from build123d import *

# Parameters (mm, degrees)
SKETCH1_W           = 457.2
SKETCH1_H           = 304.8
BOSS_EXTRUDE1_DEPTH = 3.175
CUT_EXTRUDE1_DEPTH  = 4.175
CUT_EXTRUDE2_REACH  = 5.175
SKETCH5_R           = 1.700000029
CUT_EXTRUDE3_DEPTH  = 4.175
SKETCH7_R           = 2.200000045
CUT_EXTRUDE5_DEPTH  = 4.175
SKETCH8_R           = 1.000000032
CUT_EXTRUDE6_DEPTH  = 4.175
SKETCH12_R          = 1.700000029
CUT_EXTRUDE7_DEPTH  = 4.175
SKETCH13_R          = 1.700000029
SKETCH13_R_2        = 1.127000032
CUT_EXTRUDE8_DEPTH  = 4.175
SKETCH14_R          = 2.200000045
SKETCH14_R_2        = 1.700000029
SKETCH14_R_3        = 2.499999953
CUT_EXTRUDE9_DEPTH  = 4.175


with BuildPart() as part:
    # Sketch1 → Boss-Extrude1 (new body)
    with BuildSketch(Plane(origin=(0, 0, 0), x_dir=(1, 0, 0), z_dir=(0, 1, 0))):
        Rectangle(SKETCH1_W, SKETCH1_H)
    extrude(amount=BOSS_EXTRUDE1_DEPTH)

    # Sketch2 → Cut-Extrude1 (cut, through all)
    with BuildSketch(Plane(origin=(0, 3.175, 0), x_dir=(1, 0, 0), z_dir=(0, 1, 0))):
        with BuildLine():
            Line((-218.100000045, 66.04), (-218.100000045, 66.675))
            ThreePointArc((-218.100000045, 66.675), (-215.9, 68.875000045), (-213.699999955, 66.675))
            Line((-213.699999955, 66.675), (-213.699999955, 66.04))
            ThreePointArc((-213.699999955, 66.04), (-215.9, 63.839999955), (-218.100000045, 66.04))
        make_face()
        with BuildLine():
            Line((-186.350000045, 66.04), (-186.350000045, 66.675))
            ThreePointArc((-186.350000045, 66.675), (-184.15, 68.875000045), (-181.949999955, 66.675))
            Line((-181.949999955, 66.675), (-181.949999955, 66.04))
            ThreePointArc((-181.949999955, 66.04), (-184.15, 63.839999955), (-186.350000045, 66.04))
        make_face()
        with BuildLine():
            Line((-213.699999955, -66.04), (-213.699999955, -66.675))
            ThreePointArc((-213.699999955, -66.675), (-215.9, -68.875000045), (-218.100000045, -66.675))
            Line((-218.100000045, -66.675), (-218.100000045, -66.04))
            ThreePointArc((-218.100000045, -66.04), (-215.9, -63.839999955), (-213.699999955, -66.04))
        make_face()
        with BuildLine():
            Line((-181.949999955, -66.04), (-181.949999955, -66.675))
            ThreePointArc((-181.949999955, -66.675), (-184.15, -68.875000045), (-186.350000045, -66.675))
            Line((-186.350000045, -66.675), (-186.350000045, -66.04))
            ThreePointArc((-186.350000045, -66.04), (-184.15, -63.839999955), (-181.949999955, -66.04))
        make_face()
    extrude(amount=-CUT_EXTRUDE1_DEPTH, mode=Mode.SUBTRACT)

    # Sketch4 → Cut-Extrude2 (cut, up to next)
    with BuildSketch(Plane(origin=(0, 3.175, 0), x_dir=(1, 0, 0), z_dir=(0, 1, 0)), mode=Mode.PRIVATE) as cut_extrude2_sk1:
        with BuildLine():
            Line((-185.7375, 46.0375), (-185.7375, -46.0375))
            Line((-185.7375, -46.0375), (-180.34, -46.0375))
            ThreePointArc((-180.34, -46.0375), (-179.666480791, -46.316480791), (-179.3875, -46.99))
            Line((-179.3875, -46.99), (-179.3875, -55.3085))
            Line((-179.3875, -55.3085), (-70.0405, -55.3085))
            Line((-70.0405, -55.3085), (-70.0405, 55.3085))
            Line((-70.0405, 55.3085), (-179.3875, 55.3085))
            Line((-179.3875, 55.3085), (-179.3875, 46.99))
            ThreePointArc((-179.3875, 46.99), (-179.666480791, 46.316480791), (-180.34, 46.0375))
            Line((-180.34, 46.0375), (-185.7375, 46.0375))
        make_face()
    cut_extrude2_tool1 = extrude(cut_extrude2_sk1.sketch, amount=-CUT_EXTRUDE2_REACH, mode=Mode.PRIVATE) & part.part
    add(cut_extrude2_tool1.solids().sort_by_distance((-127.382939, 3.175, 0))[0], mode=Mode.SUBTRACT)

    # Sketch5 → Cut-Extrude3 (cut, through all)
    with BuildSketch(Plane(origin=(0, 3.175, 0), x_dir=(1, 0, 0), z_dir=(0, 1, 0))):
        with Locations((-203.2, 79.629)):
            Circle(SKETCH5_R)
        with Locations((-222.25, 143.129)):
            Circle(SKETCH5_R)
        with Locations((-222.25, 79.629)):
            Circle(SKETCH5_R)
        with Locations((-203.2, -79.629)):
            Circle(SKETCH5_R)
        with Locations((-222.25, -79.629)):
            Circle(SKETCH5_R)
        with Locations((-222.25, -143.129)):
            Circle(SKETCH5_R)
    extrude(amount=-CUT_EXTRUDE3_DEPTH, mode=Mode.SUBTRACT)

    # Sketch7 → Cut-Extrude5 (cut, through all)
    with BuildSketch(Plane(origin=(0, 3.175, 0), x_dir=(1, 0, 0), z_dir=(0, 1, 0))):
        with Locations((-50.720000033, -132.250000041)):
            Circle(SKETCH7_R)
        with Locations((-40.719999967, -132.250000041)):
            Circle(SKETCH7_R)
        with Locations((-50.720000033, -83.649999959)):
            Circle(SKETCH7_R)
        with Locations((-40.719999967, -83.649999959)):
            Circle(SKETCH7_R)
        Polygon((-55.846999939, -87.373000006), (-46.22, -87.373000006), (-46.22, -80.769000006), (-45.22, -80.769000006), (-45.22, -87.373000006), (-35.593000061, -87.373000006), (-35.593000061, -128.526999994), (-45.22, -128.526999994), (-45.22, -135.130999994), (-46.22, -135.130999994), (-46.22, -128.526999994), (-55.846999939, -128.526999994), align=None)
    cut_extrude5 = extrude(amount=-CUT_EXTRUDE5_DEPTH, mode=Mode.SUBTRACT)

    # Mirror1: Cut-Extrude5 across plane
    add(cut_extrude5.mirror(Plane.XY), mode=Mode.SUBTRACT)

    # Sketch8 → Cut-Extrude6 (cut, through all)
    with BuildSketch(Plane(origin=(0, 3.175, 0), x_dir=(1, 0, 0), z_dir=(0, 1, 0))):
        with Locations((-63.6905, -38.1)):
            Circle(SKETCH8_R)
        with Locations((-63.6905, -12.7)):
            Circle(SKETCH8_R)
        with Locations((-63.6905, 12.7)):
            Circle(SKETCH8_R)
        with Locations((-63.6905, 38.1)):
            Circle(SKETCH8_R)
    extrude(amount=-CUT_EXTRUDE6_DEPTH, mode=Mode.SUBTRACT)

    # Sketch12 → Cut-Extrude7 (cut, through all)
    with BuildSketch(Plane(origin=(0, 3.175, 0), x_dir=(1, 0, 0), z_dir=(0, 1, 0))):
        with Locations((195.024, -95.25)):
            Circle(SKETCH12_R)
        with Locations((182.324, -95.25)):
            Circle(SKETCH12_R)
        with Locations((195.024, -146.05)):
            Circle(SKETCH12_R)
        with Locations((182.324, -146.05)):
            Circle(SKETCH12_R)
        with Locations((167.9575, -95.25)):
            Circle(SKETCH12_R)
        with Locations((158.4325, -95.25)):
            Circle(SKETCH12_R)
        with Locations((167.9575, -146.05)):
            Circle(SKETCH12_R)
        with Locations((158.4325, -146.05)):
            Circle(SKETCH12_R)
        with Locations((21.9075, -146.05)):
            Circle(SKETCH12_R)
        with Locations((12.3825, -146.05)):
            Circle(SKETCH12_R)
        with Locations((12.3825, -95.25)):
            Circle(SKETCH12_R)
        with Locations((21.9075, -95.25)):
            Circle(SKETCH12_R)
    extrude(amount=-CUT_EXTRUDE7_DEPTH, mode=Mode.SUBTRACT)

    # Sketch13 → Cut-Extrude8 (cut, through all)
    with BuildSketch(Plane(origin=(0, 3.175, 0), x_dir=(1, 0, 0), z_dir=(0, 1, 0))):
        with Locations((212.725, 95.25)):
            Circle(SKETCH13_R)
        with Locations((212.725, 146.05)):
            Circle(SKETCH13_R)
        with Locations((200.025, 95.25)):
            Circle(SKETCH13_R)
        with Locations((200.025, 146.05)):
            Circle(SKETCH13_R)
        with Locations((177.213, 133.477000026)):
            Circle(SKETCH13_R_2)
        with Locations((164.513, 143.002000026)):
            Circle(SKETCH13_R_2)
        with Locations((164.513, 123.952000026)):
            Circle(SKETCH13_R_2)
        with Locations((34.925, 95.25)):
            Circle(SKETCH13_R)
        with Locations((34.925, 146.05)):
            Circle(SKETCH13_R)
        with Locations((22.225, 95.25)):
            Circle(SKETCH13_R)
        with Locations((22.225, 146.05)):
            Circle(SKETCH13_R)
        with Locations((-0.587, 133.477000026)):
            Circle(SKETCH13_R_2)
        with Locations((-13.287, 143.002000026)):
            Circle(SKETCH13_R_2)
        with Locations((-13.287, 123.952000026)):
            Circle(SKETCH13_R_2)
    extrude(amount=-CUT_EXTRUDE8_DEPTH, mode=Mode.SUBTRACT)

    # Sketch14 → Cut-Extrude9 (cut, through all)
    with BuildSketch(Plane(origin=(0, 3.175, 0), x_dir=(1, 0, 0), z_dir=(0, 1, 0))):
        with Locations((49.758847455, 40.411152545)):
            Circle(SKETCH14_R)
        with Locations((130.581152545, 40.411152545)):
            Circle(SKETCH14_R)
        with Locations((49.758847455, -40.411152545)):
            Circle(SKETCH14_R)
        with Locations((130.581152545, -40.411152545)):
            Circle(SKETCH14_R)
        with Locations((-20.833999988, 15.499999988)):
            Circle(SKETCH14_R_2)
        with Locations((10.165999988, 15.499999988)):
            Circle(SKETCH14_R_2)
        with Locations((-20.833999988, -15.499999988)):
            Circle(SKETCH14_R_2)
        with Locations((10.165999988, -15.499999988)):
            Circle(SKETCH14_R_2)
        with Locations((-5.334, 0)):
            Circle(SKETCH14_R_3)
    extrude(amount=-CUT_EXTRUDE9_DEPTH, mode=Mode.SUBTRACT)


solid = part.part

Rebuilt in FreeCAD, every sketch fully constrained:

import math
import FreeCAD as App
import Part
import Sketcher

V = App.Vector
Q = App.Units.Quantity


def add_polygon(sketch, points):
    """Adds a closed chain of lines whose ends are joined by coincident constraints."""
    first, n = sketch.GeometryCount, len(points)
    for a, b in zip(points, points[1:] + points[:1]):
        sketch.addGeometry(Part.LineSegment(App.Vector(*a, 0), App.Vector(*b, 0)), False)
    for i in range(n):
        sketch.addConstraint(Sketcher.Constraint("Coincident", first + i, 2, first + (i + 1) % n, 1))

doc = App.newDocument("Part")
params = doc.addObject("Spreadsheet::Sheet", "Params")
for row, (alias, value) in enumerate([
    ("sketch1_width", "18 in"),
    ("sketch1_height", "12 in"),
    ("pad1_length", "0.125 in"),
    ("sketch2_height", "0.025 in"),
    ("sketch3_width", "4.305 in"),
    ("sketch3_height", "4.355 in"),
    ("sketch5_height", "0.26 in"),
], start=1):
    params.set(f"A{row}", alias)
    params.set(f"B{row}", "=" + value)
    params.setAlias(f"B{row}", alias)

body = doc.addObject("PartDesign::Body", "Body")

sketch1 = body.newObject("Sketcher::SketchObject", "Sketch")
sketch1.AttachmentSupport = (doc.getObject("XZ_Plane"), [""])
sketch1.MapMode = "FlatFace"
add_polygon(sketch1, [(-228.6, -152.4), (-228.6, 152.4), (228.6, 152.4), (228.6, -152.4)])
sketch1.addConstraint([
    Sketcher.Constraint("Vertical", 0),
    Sketcher.Constraint("Horizontal", 1),
    Sketcher.Constraint("Vertical", 2),
    Sketcher.Constraint("Horizontal", 3),
    Sketcher.Constraint("Symmetric", 0, 2, 2, 2, -1, 1),
    Sketcher.Constraint("DistanceX", 1, 1, 1, 2, Q("18 in")),
    Sketcher.Constraint("DistanceY", 0, 1, 0, 2, Q("12 in")),
])
sketch1.setExpression("Constraints[9]", "Params.sketch1_width")
sketch1.setExpression("Constraints[10]", "Params.sketch1_height")
pad1 = body.newObject("PartDesign::Pad", "Pad")
pad1.Profile = sketch1
pad1.setExpression("Length", "Params.pad1_length")
pad1.Reversed = True

sketch2 = body.newObject("Sketcher::SketchObject", "Sketch001")
sketch2.AttachmentSupport = (doc.getObject("XZ_Plane"), [""])
sketch2.MapMode = "FlatFace"
sketch2.AttachmentOffset = App.Placement(V(0, 0, -0.125 * 25.4), App.Rotation())
sketch2.addGeometry([
    Part.LineSegment(V(-218.1, -66.675, 0), V(-218.1, -66.04, 0)),
    Part.ArcOfCircle(Part.Circle(V(-215.9, -66.04, 0), V(0, 0, 1), 2.2), math.radians(0), math.radians(180)),
    Part.LineSegment(V(-213.7, -66.04, 0), V(-213.7, -66.675, 0)),
    Part.ArcOfCircle(Part.Circle(V(-215.9, -66.675, 0), V(0, 0, 1), 2.2), math.radians(180), math.radians(360)),
    Part.LineSegment(V(-186.35, -66.675, 0), V(-186.35, -66.04, 0)),
    Part.ArcOfCircle(Part.Circle(V(-184.15, -66.04, 0), V(0, 0, 1), 2.2), math.radians(0), math.radians(180)),
    Part.LineSegment(V(-181.95, -66.04, 0), V(-181.95, -66.675, 0)),
    Part.ArcOfCircle(Part.Circle(V(-184.15, -66.675, 0), V(0, 0, 1), 2.2), math.radians(180), math.radians(360)),
    Part.LineSegment(V(-213.7, 66.675, 0), V(-213.7, 66.04, 0)),
    Part.ArcOfCircle(Part.Circle(V(-215.9, 66.04, 0), V(0, 0, 1), 2.2), math.radians(180), math.radians(360)),
    Part.LineSegment(V(-218.1, 66.04, 0), V(-218.1, 66.675, 0)),
    Part.ArcOfCircle(Part.Circle(V(-215.9, 66.675, 0), V(0, 0, 1), 2.2), math.radians(0), math.radians(180)),
    Part.LineSegment(V(-181.95, 66.675, 0), V(-181.95, 66.04, 0)),
    Part.ArcOfCircle(Part.Circle(V(-184.15, 66.04, 0), V(0, 0, 1), 2.2), math.radians(180), math.radians(360)),
    Part.LineSegment(V(-186.35, 66.04, 0), V(-186.35, 66.675, 0)),
    Part.ArcOfCircle(Part.Circle(V(-184.15, 66.675, 0), V(0, 0, 1), 2.2), math.radians(0), math.radians(180)),
], False)
sketch2.addConstraint([
    Sketcher.Constraint("Tangent", 0, 2, 1, 2),
    Sketcher.Constraint("Tangent", 1, 1, 2, 1),
    Sketcher.Constraint("Tangent", 2, 2, 3, 2),
    Sketcher.Constraint("Tangent", 3, 1, 0, 1),
    Sketcher.Constraint("Tangent", 4, 2, 5, 2),
    Sketcher.Constraint("Tangent", 5, 1, 6, 1),
    Sketcher.Constraint("Tangent", 6, 2, 7, 2),
    Sketcher.Constraint("Tangent", 7, 1, 4, 1),
    Sketcher.Constraint("Tangent", 8, 2, 9, 2),
    Sketcher.Constraint("Tangent", 9, 1, 10, 1),
    Sketcher.Constraint("Tangent", 10, 2, 11, 2),
    Sketcher.Constraint("Tangent", 11, 1, 8, 1),
    Sketcher.Constraint("Tangent", 12, 2, 13, 2),
    Sketcher.Constraint("Tangent", 13, 1, 14, 1),
    Sketcher.Constraint("Tangent", 14, 2, 15, 2),
    Sketcher.Constraint("Tangent", 15, 1, 12, 1),
    Sketcher.Constraint("Vertical", 0),
    Sketcher.Constraint("Vertical", 2),
    Sketcher.Constraint("Vertical", 4),
    Sketcher.Constraint("Vertical", 6),
    Sketcher.Constraint("Vertical", 8),
    Sketcher.Constraint("Vertical", 10),
    Sketcher.Constraint("Vertical", 12),
    Sketcher.Constraint("Vertical", 14),
    Sketcher.Constraint("Equal", 3, 5),
    Sketcher.Constraint("Equal", 7, 9),
    Sketcher.Constraint("Equal", 11, 13),
    Sketcher.Constraint("Symmetric", 1, 3, 9, 3, -1),
    Sketcher.Constraint("Symmetric", 5, 3, 13, 3, -1),
    Sketcher.Constraint("Horizontal", 1, 3, 5, 3),
    Sketcher.Constraint("Horizontal", 3, 3, 7, 3),
    Sketcher.Constraint("Horizontal", 11, 3, 15, 3),
    Sketcher.Constraint("Equal", 6, 8),
    Sketcher.Constraint("DistanceX", 1, 3, -1, 1, Q("8.5 in")),
    Sketcher.Constraint("DistanceY", 1, 3, -1, 1, Q("2.6 in")),
    Sketcher.Constraint("DistanceY", 0, 1, 0, 2, Q("0.025 in")),
    Sketcher.Constraint("DistanceX", 5, 3, -1, 1, Q("7.25 in")),
    Sketcher.Constraint("Radius", 1, Q("2.2 mm")),
])
sketch2.setExpression("Constraints[35]", "Params.sketch2_height")
pocket1 = body.newObject("PartDesign::Pocket", "Pocket")
pocket1.Profile = sketch2
pocket1.Type = "ThroughAll"
pocket1.Reversed = True

sketch3 = body.newObject("Sketcher::SketchObject", "Sketch002")
sketch3.AttachmentSupport = (doc.getObject("XZ_Plane"), [""])
sketch3.MapMode = "FlatFace"
sketch3.AttachmentOffset = App.Placement(V(0, 0, -0.125 * 25.4), App.Rotation())
sketch3.addGeometry([
    Part.LineSegment(V(-185.7375, -46.0375, 0), V(-185.7375, 46.0375, 0)),
    Part.LineSegment(V(-185.7375, 46.0375, 0), V(-180.34, 46.0375, 0)),
    Part.ArcOfCircle(Part.Circle(V(-180.34, 46.99, 0), V(0, 0, 1), 0.9525), math.radians(-90), math.radians(0)),
    Part.LineSegment(V(-179.3875, 46.99, 0), V(-179.3875, 55.3085, 0)),
    Part.LineSegment(V(-179.3875, 55.3085, 0), V(-70.0405, 55.3085, 0)),
    Part.LineSegment(V(-70.0405, 55.3085, 0), V(-70.0405, -55.3085, 0)),
    Part.LineSegment(V(-70.0405, -55.3085, 0), V(-179.3875, -55.3085, 0)),
    Part.LineSegment(V(-179.3875, -55.3085, 0), V(-179.3875, -46.99, 0)),
    Part.ArcOfCircle(Part.Circle(V(-180.34, -46.99, 0), V(0, 0, 1), 0.9525), math.radians(0), math.radians(90)),
    Part.LineSegment(V(-180.34, -46.0375, 0), V(-185.7375, -46.0375, 0)),
], False)
sketch3.addConstraint([
    Sketcher.Constraint("Coincident", 0, 2, 1, 1),
    Sketcher.Constraint("Tangent", 1, 2, 2, 1),
    Sketcher.Constraint("Tangent", 2, 2, 3, 1),
    Sketcher.Constraint("Coincident", 3, 2, 4, 1),
    Sketcher.Constraint("Coincident", 4, 2, 5, 1),
    Sketcher.Constraint("Coincident", 5, 2, 6, 1),
    Sketcher.Constraint("Coincident", 6, 2, 7, 1),
    Sketcher.Constraint("Tangent", 7, 2, 8, 1),
    Sketcher.Constraint("Tangent", 8, 2, 9, 1),
    Sketcher.Constraint("Coincident", 9, 2, 0, 1),
    Sketcher.Constraint("Vertical", 0),
    Sketcher.Constraint("Horizontal", 1),
    Sketcher.Constraint("Vertical", 3),
    Sketcher.Constraint("Horizontal", 4),
    Sketcher.Constraint("Vertical", 5),
    Sketcher.Constraint("Horizontal", 6),
    Sketcher.Constraint("Vertical", 7),
    Sketcher.Constraint("Horizontal", 9),
    Sketcher.Constraint("Equal", 2, 8),
    Sketcher.Constraint("Symmetric", 2, 3, 8, 3, -1),
    Sketcher.Constraint("Equal", 3, 7),
    Sketcher.Constraint("DistanceX", 2, 3, -1, 1, Q("7.1 in")),
    Sketcher.Constraint("Radius", 2, Q("0.0375 in")),
    Sketcher.Constraint("DistanceY", 8, 3, 2, 3, Q("3.7 in")),
    Sketcher.Constraint("DistanceX", 4, 1, 4, 2, Q("4.305 in")),
    Sketcher.Constraint("DistanceY", 5, 2, 5, 1, Q("4.355 in")),
    Sketcher.Constraint("DistanceX", 0, 2, 2, 2, Q("0.25 in")),
])
sketch3.setExpression("Constraints[24]", "Params.sketch3_width")
sketch3.setExpression("Constraints[25]", "Params.sketch3_height")
pocket2 = body.newObject("PartDesign::Pocket", "Pocket001")
pocket2.Profile = sketch3
pocket2.Type = "UpToFirst"
pocket2.Reversed = True

sketch4 = body.newObject("Sketcher::SketchObject", "Sketch003")
sketch4.AttachmentSupport = (doc.getObject("XZ_Plane"), [""])
sketch4.MapMode = "FlatFace"
sketch4.AttachmentOffset = App.Placement(V(0, 0, -0.125 * 25.4), App.Rotation())
sketch4.addGeometry([
    Part.Circle(V(-203.2, -79.629, 0), V(0, 0, 1), 1.7),
    Part.Circle(V(-222.25, -143.129, 0), V(0, 0, 1), 1.7),
    Part.Circle(V(-222.25, -79.629, 0), V(0, 0, 1), 1.7),
    Part.Circle(V(-203.2, 79.629, 0), V(0, 0, 1), 1.7),
    Part.Circle(V(-222.25, 79.629, 0), V(0, 0, 1), 1.7),
    Part.Circle(V(-222.25, 143.129, 0), V(0, 0, 1), 1.7),
], False)
sketch4.addConstraint([
    Sketcher.Constraint("Equal", 0, 1),
    Sketcher.Constraint("Equal", 1, 2),
    Sketcher.Constraint("Equal", 2, 3),
    Sketcher.Constraint("Equal", 3, 4),
    Sketcher.Constraint("Equal", 4, 5),
    Sketcher.Constraint("Symmetric", 0, 3, 3, 3, -1),
    Sketcher.Constraint("Symmetric", 2, 3, 4, 3, -1),
    Sketcher.Constraint("Symmetric", 1, 3, 5, 3, -1),
    Sketcher.Constraint("Horizontal", 0, 3, 2, 3),
    Sketcher.Constraint("Vertical", 1, 3, 2, 3),
    Sketcher.Constraint("DistanceX", 0, 3, -1, 1, Q("8 in")),
    Sketcher.Constraint("DistanceY", 1, 3, 0, 3, Q("2.5 in")),
    Sketcher.Constraint("Diameter", 0, Q("3.4 mm")),
    Sketcher.Constraint("DistanceX", 1, 3, -1, 1, Q("8.75 in")),
    Sketcher.Constraint("DistanceY", 0, 3, 3, 3, Q("6.27 in")),
])
pocket3 = body.newObject("PartDesign::Pocket", "Pocket002")
pocket3.Profile = sketch4
pocket3.Type = "ThroughAll"
pocket3.Reversed = True

sketch5 = body.newObject("Sketcher::SketchObject", "Sketch004")
sketch5.AttachmentSupport = (doc.getObject("XZ_Plane"), [""])
sketch5.MapMode = "FlatFace"
sketch5.AttachmentOffset = App.Placement(V(0, 0, -0.125 * 25.4), App.Rotation())
sketch5.addGeometry(Part.Circle(V(-50.72, 132.25, 0), V(0, 0, 1), 2.2), False)
sketch5.addGeometry(Part.Circle(V(-40.72, 132.25, 0), V(0, 0, 1), 2.2), False)
sketch5.addGeometry(Part.Circle(V(-50.72, 83.65, 0), V(0, 0, 1), 2.2), False)
sketch5.addGeometry(Part.Circle(V(-40.72, 83.65, 0), V(0, 0, 1), 2.2), False)
add_polygon(sketch5, [(-46.22, 87.373), (-55.847, 87.373), (-55.847, 128.527), (-46.22, 128.527), (-46.22, 135.131), (-45.22, 135.131), (-45.22, 128.527), (-35.593, 128.527), (-35.593, 87.373), (-45.22, 87.373), (-45.22, 80.769), (-46.22, 80.769)])
sketch5.addConstraint([
    Sketcher.Constraint("Horizontal", 4),
    Sketcher.Constraint("Vertical", 5),
    Sketcher.Constraint("Horizontal", 6),
    Sketcher.Constraint("Vertical", 7),
    Sketcher.Constraint("Horizontal", 8),
    Sketcher.Constraint("Vertical", 9),
    Sketcher.Constraint("Horizontal", 10),
    Sketcher.Constraint("Vertical", 11),
    Sketcher.Constraint("Horizontal", 12),
    Sketcher.Constraint("Vertical", 13),
    Sketcher.Constraint("Horizontal", 14),
    Sketcher.Constraint("Vertical", 15),
    Sketcher.Constraint("Equal", 0, 1),
    Sketcher.Constraint("Equal", 1, 2),
    Sketcher.Constraint("Equal", 2, 3),
    Sketcher.Constraint("Horizontal", 0, 3, 1, 3),
    Sketcher.Constraint("Horizontal", 2, 3, 3, 3),
    Sketcher.Constraint("Horizontal", 6, 2, 9, 2),
    Sketcher.Constraint("Horizontal", 4, 2, 11, 2),
    Sketcher.Constraint("Vertical", 0, 3, 2, 3),
    Sketcher.Constraint("Vertical", 1, 3, 3, 3),
    Sketcher.Constraint("Vertical", 9, 2, 12, 2),
    Sketcher.Constraint("Vertical", 7, 2, 14, 2),
    Sketcher.Constraint("Equal", 6, 10),
    Sketcher.Constraint("Equal", 9, 13),
    Sketcher.Constraint("DistanceY", 7, 1, 7, 2, Q("0.26 in")),
    Sketcher.Constraint("Diameter", 0, Q("4.4 mm")),
    Sketcher.Constraint("DistanceX", 4, 2, 4, 1, Q("9.627 mm")),
    Sketcher.Constraint("DistanceX", 8, 1, 8, 2, Q("1 mm")),
    Sketcher.Constraint("DistanceY", 5, 1, 5, 2, Q("41.154 mm")),
    Sketcher.Constraint("DistanceX", 0, 3, -1, 1, Q("50.72 mm")),
    Sketcher.Constraint("DistanceY", -1, 1, 0, 3, Q("132.25 mm")),
    Sketcher.Constraint("DistanceX", 1, 3, -1, 1, Q("40.72 mm")),
    Sketcher.Constraint("DistanceY", -1, 1, 2, 3, Q("83.65 mm")),
    Sketcher.Constraint("DistanceX", 4, 2, -1, 1, Q("55.847 mm")),
    Sketcher.Constraint("DistanceY", -1, 1, 4, 2, Q("87.373 mm")),
])
sketch5.setExpression("Constraints[37]", "Params.sketch5_height")
pocket4 = body.newObject("PartDesign::Pocket", "Pocket003")
pocket4.Profile = sketch5
pocket4.Type = "ThroughAll"
pocket4.Reversed = True
doc.recompute()

mirrored = body.newObject("PartDesign::Mirrored", "Mirrored")
mirrored.Originals = [pocket4]
mirrored.MirrorPlane = (doc.getObject("XY_Plane"), [""])
body.Tip = mirrored

sketch6 = body.newObject("Sketcher::SketchObject", "Sketch005")
sketch6.AttachmentSupport = (doc.getObject("XZ_Plane"), [""])
sketch6.MapMode = "FlatFace"
sketch6.AttachmentOffset = App.Placement(V(0, 0, -0.125 * 25.4), App.Rotation())
sketch6.addGeometry([
    Part.Circle(V(-63.6905, 38.1, 0), V(0, 0, 1), 1),
    Part.Circle(V(-63.6905, 12.7, 0), V(0, 0, 1), 1),
    Part.Circle(V(-63.6905, -12.7, 0), V(0, 0, 1), 1),
    Part.Circle(V(-63.6905, -38.1, 0), V(0, 0, 1), 1),
], False)
sketch6.addConstraint([
    Sketcher.Constraint("Equal", 0, 1),
    Sketcher.Constraint("Equal", 1, 2),
    Sketcher.Constraint("Equal", 2, 3),
    Sketcher.Constraint("Symmetric", 1, 3, 2, 3, -1),
    Sketcher.Constraint("Symmetric", 0, 3, 3, 3, -1),
    Sketcher.Constraint("Vertical", 0, 3, 1, 3),
    Sketcher.Constraint("DistanceY", 1, 3, 0, 3, Q("1 in")),
    Sketcher.Constraint("DistanceY", 2, 3, 1, 3, Q("1 in")),
    Sketcher.Constraint("Diameter", 0, Q("2 mm")),
    Sketcher.Constraint("DistanceX", 0, 3, -1, 1, Q("2.5075 in")),
])
pocket5 = body.newObject("PartDesign::Pocket", "Pocket004")
pocket5.Profile = sketch6
pocket5.Type = "ThroughAll"
pocket5.Reversed = True

sketch7 = body.newObject("Sketcher::SketchObject", "Sketch006")
sketch7.AttachmentSupport = (doc.getObject("XZ_Plane"), [""])
sketch7.MapMode = "FlatFace"
sketch7.AttachmentOffset = App.Placement(V(0, 0, -0.125 * 25.4), App.Rotation())
sketch7.addGeometry([
    Part.Circle(V(195.024, 95.25, 0), V(0, 0, 1), 1.7),
    Part.Circle(V(182.324, 95.25, 0), V(0, 0, 1), 1.7),
    Part.Circle(V(195.024, 146.05, 0), V(0, 0, 1), 1.7),
    Part.Circle(V(182.324, 146.05, 0), V(0, 0, 1), 1.7),
    Part.Circle(V(167.9575, 95.25, 0), V(0, 0, 1), 1.7),
    Part.Circle(V(158.4325, 95.25, 0), V(0, 0, 1), 1.7),
    Part.Circle(V(167.9575, 146.05, 0), V(0, 0, 1), 1.7),
    Part.Circle(V(158.4325, 146.05, 0), V(0, 0, 1), 1.7),
    Part.Circle(V(21.9075, 146.05, 0), V(0, 0, 1), 1.7),
    Part.Circle(V(12.3825, 146.05, 0), V(0, 0, 1), 1.7),
    Part.Circle(V(12.3825, 95.25, 0), V(0, 0, 1), 1.7),
    Part.Circle(V(21.9075, 95.25, 0), V(0, 0, 1), 1.7),
], False)
sketch7.addConstraint([
    Sketcher.Constraint("Equal", 0, 1),
    Sketcher.Constraint("Equal", 1, 2),
    Sketcher.Constraint("Equal", 2, 3),
    Sketcher.Constraint("Equal", 3, 4),
    Sketcher.Constraint("Equal", 4, 5),
    Sketcher.Constraint("Equal", 5, 6),
    Sketcher.Constraint("Equal", 6, 7),
    Sketcher.Constraint("Equal", 7, 8),
    Sketcher.Constraint("Equal", 8, 9),
    Sketcher.Constraint("Equal", 9, 10),
    Sketcher.Constraint("Equal", 10, 11),
    Sketcher.Constraint("Horizontal", 0, 3, 1, 3),
    Sketcher.Constraint("Horizontal", 2, 3, 3, 3),
    Sketcher.Constraint("Horizontal", 1, 3, 4, 3),
    Sketcher.Constraint("Horizontal", 4, 3, 5, 3),
    Sketcher.Constraint("Horizontal", 3, 3, 6, 3),
    Sketcher.Constraint("Horizontal", 6, 3, 7, 3),
    Sketcher.Constraint("Horizontal", 7, 3, 8, 3),
    Sketcher.Constraint("Horizontal", 8, 3, 9, 3),
    Sketcher.Constraint("Horizontal", 5, 3, 10, 3),
    Sketcher.Constraint("Horizontal", 10, 3, 11, 3),
    Sketcher.Constraint("Vertical", 0, 3, 2, 3),
    Sketcher.Constraint("Vertical", 1, 3, 3, 3),
    Sketcher.Constraint("Vertical", 4, 3, 6, 3),
    Sketcher.Constraint("Vertical", 5, 3, 7, 3),
    Sketcher.Constraint("Vertical", 9, 3, 10, 3),
    Sketcher.Constraint("Vertical", 8, 3, 11, 3),
    Sketcher.Constraint("DistanceY", 0, 3, 2, 3, Q("2 in")),
    Sketcher.Constraint("DistanceX", 1, 3, 0, 3, Q("0.5 in")),
    Sketcher.Constraint("Diameter", 0, Q("3.4 mm")),
    Sketcher.Constraint("DistanceY", -1, 1, 0, 3, Q("3.75 in")),
    Sketcher.Constraint("DistanceX", 8, 3, 6, 3, Q("5.75 in")),
    Sketcher.Constraint("DistanceX", 9, 3, 7, 3, Q("5.75 in")),
    Sketcher.Constraint("DistanceX", 5, 3, 4, 3, Q("0.375 in")),
    Sketcher.Constraint("DistanceX", -1, 1, 4, 3, Q("6.6125 in")),
    Sketcher.Constraint("DistanceX", -1, 1, 0, 3, Q("195.024 mm")),
])
pocket6 = body.newObject("PartDesign::Pocket", "Pocket005")
pocket6.Profile = sketch7
pocket6.Type = "ThroughAll"
pocket6.Reversed = True

sketch8 = body.newObject("Sketcher::SketchObject", "Sketch007")
sketch8.AttachmentSupport = (doc.getObject("XZ_Plane"), [""])
sketch8.MapMode = "FlatFace"
sketch8.AttachmentOffset = App.Placement(V(0, 0, -0.125 * 25.4), App.Rotation())
sketch8.addGeometry([
    Part.Circle(V(212.725, -95.25, 0), V(0, 0, 1), 1.7),
    Part.Circle(V(212.725, -146.05, 0), V(0, 0, 1), 1.7),
    Part.Circle(V(200.025, -95.25, 0), V(0, 0, 1), 1.7),
    Part.Circle(V(200.025, -146.05, 0), V(0, 0, 1), 1.7),
    Part.Circle(V(177.213, -133.477, 0), V(0, 0, 1), 1.127),
    Part.Circle(V(164.513, -143.002, 0), V(0, 0, 1), 1.127),
    Part.Circle(V(164.513, -123.952, 0), V(0, 0, 1), 1.127),
    Part.Circle(V(34.925, -95.25, 0), V(0, 0, 1), 1.7),
    Part.Circle(V(34.925, -146.05, 0), V(0, 0, 1), 1.7),
    Part.Circle(V(22.225, -95.25, 0), V(0, 0, 1), 1.7),
    Part.Circle(V(22.225, -146.05, 0), V(0, 0, 1), 1.7),
    Part.Circle(V(-0.587, -133.477, 0), V(0, 0, 1), 1.127),
    Part.Circle(V(-13.287, -143.002, 0), V(0, 0, 1), 1.127),
    Part.Circle(V(-13.287, -123.952, 0), V(0, 0, 1), 1.127),
], False)
sketch8.addConstraint([
    Sketcher.Constraint("Equal", 0, 1),
    Sketcher.Constraint("Equal", 1, 2),
    Sketcher.Constraint("Equal", 2, 3),
    Sketcher.Constraint("Equal", 4, 5),
    Sketcher.Constraint("Equal", 5, 6),
    Sketcher.Constraint("Equal", 3, 7),
    Sketcher.Constraint("Equal", 7, 8),
    Sketcher.Constraint("Equal", 8, 9),
    Sketcher.Constraint("Equal", 9, 10),
    Sketcher.Constraint("Equal", 6, 11),
    Sketcher.Constraint("Equal", 11, 12),
    Sketcher.Constraint("Equal", 12, 13),
    Sketcher.Constraint("Horizontal", 0, 3, 2, 3),
    Sketcher.Constraint("Horizontal", 1, 3, 3, 3),
    Sketcher.Constraint("Horizontal", 2, 3, 7, 3),
    Sketcher.Constraint("Horizontal", 3, 3, 8, 3),
    Sketcher.Constraint("Horizontal", 7, 3, 9, 3),
    Sketcher.Constraint("Horizontal", 8, 3, 10, 3),
    Sketcher.Constraint("Horizontal", 4, 3, 11, 3),
    Sketcher.Constraint("Horizontal", 5, 3, 12, 3),
    Sketcher.Constraint("Horizontal", 6, 3, 13, 3),
    Sketcher.Constraint("Vertical", 0, 3, 1, 3),
    Sketcher.Constraint("Vertical", 2, 3, 3, 3),
    Sketcher.Constraint("Vertical", 5, 3, 6, 3),
    Sketcher.Constraint("Vertical", 7, 3, 8, 3),
    Sketcher.Constraint("Vertical", 9, 3, 10, 3),
    Sketcher.Constraint("Vertical", 12, 3, 13, 3),
    Sketcher.Constraint("DistanceY", 1, 3, 0, 3, Q("2 in")),
    Sketcher.Constraint("DistanceX", 2, 3, 0, 3, Q("0.5 in")),
    Sketcher.Constraint("DistanceX", 5, 3, 4, 3, Q("0.5 in")),
    Sketcher.Constraint("DistanceX", 7, 3, 2, 3, Q("6.5 in")),
    Sketcher.Constraint("DistanceX", 9, 3, 7, 3, Q("0.5 in")),
    Sketcher.Constraint("DistanceX", 11, 3, 5, 3, Q("6.5 in")),
    Sketcher.Constraint("DistanceX", 12, 3, 11, 3, Q("0.5 in")),
    Sketcher.Constraint("Diameter", 0, Q("3.4 mm")),
    Sketcher.Constraint("Diameter", 4, Q("2.254 mm")),
    Sketcher.Constraint("DistanceY", 0, 3, -1, 1, Q("3.75 in")),
    Sketcher.Constraint("DistanceY", 5, 3, -1, 1, Q("5.63 in")),
    Sketcher.Constraint("DistanceY", 6, 3, -1, 1, Q("4.88 in")),
    Sketcher.Constraint("DistanceX", -1, 1, 0, 3, Q("8.375 in")),
    Sketcher.Constraint("DistanceY", 4, 3, -1, 1, Q("5.255 in")),
    Sketcher.Constraint("DistanceX", -1, 1, 4, 3, Q("177.213 mm")),
])
pocket7 = body.newObject("PartDesign::Pocket", "Pocket006")
pocket7.Profile = sketch8
pocket7.Type = "ThroughAll"
pocket7.Reversed = True

sketch9 = body.newObject("Sketcher::SketchObject", "Sketch008")
sketch9.AttachmentSupport = (doc.getObject("XZ_Plane"), [""])
sketch9.MapMode = "FlatFace"
sketch9.AttachmentOffset = App.Placement(V(0, 0, -0.125 * 25.4), App.Rotation())
sketch9.addGeometry([
    Part.Circle(V(49.758847, -40.411153, 0), V(0, 0, 1), 2.2),
    Part.Circle(V(130.581153, -40.411153, 0), V(0, 0, 1), 2.2),
    Part.Circle(V(49.758847, 40.411153, 0), V(0, 0, 1), 2.2),
    Part.Circle(V(130.581153, 40.411153, 0), V(0, 0, 1), 2.2),
    Part.Circle(V(-20.834, -15.5, 0), V(0, 0, 1), 1.7),
    Part.Circle(V(10.166, -15.5, 0), V(0, 0, 1), 1.7),
    Part.Circle(V(-20.834, 15.5, 0), V(0, 0, 1), 1.7),
    Part.Circle(V(10.166, 15.5, 0), V(0, 0, 1), 1.7),
    Part.Circle(V(-5.334, 0, 0), V(0, 0, 1), 2.5),
], False)
sketch9.addConstraint([
    Sketcher.Constraint("Equal", 0, 1),
    Sketcher.Constraint("Equal", 1, 2),
    Sketcher.Constraint("Equal", 2, 3),
    Sketcher.Constraint("Equal", 4, 5),
    Sketcher.Constraint("Equal", 5, 6),
    Sketcher.Constraint("Equal", 6, 7),
    Sketcher.Constraint("Symmetric", 0, 3, 2, 3, -1),
    Sketcher.Constraint("Symmetric", 1, 3, 3, 3, -1),
    Sketcher.Constraint("Symmetric", 4, 3, 6, 3, -1),
    Sketcher.Constraint("Symmetric", 5, 3, 7, 3, -1),
    Sketcher.Constraint("PointOnObject", 8, 3, -1),
    Sketcher.Constraint("Horizontal", 0, 3, 1, 3),
    Sketcher.Constraint("Horizontal", 4, 3, 5, 3),
    Sketcher.Constraint("Diameter", 0, Q("4.4 mm")),
    Sketcher.Constraint("Diameter", 4, Q("3.4 mm")),
    Sketcher.Constraint("Diameter", 8, Q("5 mm")),
    Sketcher.Constraint("DistanceX", 8, 3, -1, 1, Q("0.21 in")),
    Sketcher.Constraint("DistanceX", 4, 3, -1, 1, Q("20.834 mm")),
    Sketcher.Constraint("DistanceY", 4, 3, -1, 1, Q("15.5 mm")),
    Sketcher.Constraint("DistanceX", -1, 1, 5, 3, Q("10.166 mm")),
    Sketcher.Constraint("DistanceX", -1, 1, 0, 3, Q("49.758847 mm")),
    Sketcher.Constraint("DistanceY", 0, 3, -1, 1, Q("40.411153 mm")),
    Sketcher.Constraint("DistanceX", -1, 1, 1, 3, Q("130.581153 mm")),
])
pocket8 = body.newObject("PartDesign::Pocket", "Pocket007")
pocket8.Profile = sketch9
pocket8.Type = "ThroughAll"
pocket8.Reversed = True

doc.recompute()
